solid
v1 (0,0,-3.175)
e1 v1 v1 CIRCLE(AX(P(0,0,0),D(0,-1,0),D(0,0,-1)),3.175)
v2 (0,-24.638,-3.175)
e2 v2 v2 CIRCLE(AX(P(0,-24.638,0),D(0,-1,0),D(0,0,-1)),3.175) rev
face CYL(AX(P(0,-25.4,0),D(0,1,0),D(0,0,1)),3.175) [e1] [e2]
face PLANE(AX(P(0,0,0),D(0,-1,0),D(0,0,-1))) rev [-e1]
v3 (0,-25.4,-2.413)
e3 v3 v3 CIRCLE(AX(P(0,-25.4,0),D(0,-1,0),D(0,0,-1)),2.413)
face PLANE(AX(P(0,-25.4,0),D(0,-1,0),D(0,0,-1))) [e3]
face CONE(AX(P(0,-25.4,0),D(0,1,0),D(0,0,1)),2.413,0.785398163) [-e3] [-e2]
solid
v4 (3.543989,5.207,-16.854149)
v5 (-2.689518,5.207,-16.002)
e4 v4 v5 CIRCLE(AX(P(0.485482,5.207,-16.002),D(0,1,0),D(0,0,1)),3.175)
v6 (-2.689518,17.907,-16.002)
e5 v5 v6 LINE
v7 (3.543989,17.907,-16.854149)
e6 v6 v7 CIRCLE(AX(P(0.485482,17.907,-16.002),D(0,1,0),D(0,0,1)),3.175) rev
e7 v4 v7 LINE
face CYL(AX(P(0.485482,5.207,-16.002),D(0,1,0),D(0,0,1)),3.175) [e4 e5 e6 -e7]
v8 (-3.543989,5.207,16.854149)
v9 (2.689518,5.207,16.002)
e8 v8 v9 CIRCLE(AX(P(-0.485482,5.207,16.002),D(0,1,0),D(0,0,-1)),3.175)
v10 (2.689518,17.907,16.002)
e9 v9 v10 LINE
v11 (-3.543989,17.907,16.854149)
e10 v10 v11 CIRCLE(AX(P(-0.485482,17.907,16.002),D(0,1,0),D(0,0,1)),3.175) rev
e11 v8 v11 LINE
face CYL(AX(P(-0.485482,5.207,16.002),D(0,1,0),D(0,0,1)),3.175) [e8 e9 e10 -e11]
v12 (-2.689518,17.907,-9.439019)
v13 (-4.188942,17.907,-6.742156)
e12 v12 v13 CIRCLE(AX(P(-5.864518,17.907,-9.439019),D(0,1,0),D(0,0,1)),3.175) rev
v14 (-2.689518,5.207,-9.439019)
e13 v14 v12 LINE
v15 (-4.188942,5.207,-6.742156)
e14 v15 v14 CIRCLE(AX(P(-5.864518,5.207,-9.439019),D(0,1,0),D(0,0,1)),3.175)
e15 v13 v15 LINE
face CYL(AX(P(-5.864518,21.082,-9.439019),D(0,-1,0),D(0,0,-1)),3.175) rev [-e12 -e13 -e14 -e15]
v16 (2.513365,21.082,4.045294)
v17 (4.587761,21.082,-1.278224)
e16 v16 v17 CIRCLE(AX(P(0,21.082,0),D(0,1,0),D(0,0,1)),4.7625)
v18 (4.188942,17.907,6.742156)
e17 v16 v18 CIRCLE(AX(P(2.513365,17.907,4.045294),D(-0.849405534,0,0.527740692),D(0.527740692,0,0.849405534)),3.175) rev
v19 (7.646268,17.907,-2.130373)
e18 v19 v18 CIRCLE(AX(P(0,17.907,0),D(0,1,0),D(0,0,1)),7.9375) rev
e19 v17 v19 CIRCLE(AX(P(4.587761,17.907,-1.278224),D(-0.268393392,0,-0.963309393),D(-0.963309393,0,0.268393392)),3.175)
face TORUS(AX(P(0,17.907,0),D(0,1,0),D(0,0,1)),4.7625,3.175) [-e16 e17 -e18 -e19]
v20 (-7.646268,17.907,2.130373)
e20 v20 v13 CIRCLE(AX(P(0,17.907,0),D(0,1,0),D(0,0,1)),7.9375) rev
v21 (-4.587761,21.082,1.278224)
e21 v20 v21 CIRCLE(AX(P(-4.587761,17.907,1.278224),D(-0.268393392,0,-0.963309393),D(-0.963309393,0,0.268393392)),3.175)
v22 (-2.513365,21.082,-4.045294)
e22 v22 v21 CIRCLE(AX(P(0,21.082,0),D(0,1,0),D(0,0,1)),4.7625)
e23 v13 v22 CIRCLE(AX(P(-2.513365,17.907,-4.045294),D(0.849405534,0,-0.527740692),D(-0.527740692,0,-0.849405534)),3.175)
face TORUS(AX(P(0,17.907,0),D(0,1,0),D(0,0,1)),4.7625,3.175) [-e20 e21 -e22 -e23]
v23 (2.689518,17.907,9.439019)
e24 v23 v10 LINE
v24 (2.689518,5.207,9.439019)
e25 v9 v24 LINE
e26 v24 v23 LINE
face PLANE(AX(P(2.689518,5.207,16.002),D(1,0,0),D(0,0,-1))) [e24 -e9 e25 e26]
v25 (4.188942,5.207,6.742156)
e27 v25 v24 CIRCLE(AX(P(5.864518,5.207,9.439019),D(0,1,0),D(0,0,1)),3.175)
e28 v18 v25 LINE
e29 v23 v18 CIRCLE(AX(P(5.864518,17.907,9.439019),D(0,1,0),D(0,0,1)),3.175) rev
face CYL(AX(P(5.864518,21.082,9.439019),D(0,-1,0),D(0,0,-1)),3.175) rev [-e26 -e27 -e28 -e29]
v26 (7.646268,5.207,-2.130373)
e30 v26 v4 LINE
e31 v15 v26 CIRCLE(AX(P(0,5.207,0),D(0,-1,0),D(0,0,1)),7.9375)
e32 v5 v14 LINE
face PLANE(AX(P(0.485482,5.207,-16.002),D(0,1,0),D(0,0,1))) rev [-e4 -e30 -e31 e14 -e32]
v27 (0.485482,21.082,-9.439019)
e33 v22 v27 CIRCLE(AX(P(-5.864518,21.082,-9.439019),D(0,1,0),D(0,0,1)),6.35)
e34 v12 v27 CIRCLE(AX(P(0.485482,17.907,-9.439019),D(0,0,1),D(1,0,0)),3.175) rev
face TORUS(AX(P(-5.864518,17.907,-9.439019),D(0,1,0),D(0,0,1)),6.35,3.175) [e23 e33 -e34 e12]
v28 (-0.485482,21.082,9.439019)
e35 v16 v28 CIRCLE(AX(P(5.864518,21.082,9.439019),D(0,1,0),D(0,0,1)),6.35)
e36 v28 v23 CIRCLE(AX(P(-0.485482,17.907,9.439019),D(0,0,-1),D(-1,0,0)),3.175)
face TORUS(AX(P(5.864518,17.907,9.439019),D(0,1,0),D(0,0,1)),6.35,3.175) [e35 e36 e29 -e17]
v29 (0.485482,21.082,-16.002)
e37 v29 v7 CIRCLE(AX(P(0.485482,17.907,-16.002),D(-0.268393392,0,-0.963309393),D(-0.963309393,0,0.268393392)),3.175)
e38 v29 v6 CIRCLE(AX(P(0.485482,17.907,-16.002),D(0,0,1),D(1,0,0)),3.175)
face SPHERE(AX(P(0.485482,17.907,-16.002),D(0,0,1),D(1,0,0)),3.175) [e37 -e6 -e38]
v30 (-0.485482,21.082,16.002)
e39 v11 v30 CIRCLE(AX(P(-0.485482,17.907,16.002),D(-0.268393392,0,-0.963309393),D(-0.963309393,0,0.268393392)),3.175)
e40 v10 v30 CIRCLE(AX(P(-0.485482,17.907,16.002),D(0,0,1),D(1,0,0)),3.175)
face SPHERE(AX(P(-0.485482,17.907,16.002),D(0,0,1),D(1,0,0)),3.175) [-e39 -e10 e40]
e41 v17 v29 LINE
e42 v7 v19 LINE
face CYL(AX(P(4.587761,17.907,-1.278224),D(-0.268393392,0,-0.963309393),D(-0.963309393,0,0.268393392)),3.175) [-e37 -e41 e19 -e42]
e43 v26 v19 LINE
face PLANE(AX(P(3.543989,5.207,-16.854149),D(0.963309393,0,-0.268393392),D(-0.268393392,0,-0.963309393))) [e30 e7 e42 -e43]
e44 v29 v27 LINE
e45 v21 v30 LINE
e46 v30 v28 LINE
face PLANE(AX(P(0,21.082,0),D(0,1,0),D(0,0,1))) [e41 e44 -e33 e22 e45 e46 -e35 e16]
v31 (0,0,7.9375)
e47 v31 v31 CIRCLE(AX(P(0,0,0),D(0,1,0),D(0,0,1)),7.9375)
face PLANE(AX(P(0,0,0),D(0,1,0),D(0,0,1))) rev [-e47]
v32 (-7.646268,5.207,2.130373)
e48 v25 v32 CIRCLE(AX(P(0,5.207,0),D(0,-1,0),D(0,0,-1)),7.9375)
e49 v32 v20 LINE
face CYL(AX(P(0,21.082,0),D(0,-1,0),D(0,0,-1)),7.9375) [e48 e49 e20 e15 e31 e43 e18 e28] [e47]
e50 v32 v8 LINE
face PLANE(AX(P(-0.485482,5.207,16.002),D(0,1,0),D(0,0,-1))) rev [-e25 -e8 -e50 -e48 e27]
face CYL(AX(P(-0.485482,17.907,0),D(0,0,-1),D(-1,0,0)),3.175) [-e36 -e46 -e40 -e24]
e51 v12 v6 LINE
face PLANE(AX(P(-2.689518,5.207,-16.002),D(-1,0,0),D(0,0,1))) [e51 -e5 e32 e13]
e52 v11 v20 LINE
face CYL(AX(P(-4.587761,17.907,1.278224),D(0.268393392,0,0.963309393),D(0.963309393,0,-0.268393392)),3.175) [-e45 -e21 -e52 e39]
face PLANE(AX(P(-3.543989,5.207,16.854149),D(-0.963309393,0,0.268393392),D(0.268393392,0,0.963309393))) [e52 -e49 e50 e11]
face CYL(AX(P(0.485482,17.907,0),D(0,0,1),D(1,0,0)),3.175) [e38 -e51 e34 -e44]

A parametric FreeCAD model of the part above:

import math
import FreeCAD as App
import Part
import Sketcher

V = App.Vector
Q = App.Units.Quantity


def edges_at(feature, points):
    """Names of the edges that pass closest to the given points."""
    edges = feature.Shape.Edges
    near = lambda p: min(range(len(edges)), key=lambda i: edges[i].distToShape(Part.Vertex(*p))[0])
    return sorted({f"Edge{near(p) + 1}" for p in points})

doc = App.newDocument("Part")
body = doc.addObject("PartDesign::Body", "Body")

# Sketch on XZ plane
sketch1 = body.newObject("Sketcher::SketchObject", "Sketch")
sketch1.AttachmentSupport = (doc.getObject("XZ_Plane"), [""])
sketch1.MapMode = "FlatFace"
sketch1.addGeometry(Part.Circle(V(0, 0, 0), V(0, 0, 1), 8), False)
sketch1.addConstraint(Sketcher.Constraint("Coincident", 0, 3, -1, 1))
sketch1.addConstraint(Sketcher.Constraint("Diameter", 0, Q("0.625 in")))
pad1 = body.newObject("PartDesign::Pad", "Pad")
pad1.Profile = sketch1
pad1.Length = Q("0.83 in")
pad1.Reversed = True

# Sketch on XZ plane
sketch2 = body.newObject("Sketcher::SketchObject", "Sketch001")
sketch2.AttachmentSupport = (doc.getObject("XZ_Plane"), [""])
sketch2.MapMode = "FlatFace"
sketch2.AttachmentOffset = App.Placement(V(0, 0, -0.83 * 25.4), App.Rotation())
sketch2.addGeometry(Part.LineSegment(V(-2.7, -16, 0), V(-2.7, -7.5, 0)), False)
sketch2.addGeometry(Part.ArcOfCircle(Part.Circle(V(0, 0, 0), V(0, 0, 1), 7.9), math.radians(-110), math.radians(-16)), False)
sketch2.addGeometry(Part.LineSegment(V(7.6, -2.1, 0), V(3.5, -16.9, 0)), False)
sketch2.addGeometry(Part.ArcOfCircle(Part.Circle(V(0.5, -16, 0), V(0, 0, 1), 3.2), math.radians(180), math.radians(344)), False)
sketch2.addConstraint(Sketcher.Constraint("Coincident", 0, 2, 1, 1))
sketch2.addConstraint(Sketcher.Constraint("Tangent", 1, 2, 2, 1))
sketch2.addConstraint(Sketcher.Constraint("Tangent", 2, 2, 3, 2))
sketch2.addConstraint(Sketcher.Constraint("Tangent", 3, 1, 0, 1))
sketch2.addConstraint(Sketcher.Constraint("Vertical", 0))
sketch2.addConstraint(Sketcher.Constraint("Coincident", 1, 3, -1, 1))
sketch2.addConstraint(Sketcher.Constraint("Radius", 1, Q("0.3125 in")))
sketch2.addConstraint(Sketcher.Constraint("Radius", 3, Q("0.125 in")))
sketch2.addConstraint(Sketcher.Constraint("DistanceY", 3, 3, -1, 1, Q("0.63 in")))
sketch2.addConstraint(Sketcher.Constraint("DistanceY", 0, 1, 0, 2, 8.534042))
pad2 = body.newObject("PartDesign::Pad", "Pad001")
pad2.Profile = sketch2
pad2.Length = Q("0.625 in")
doc.recompute()

polarpattern = body.newObject("PartDesign::PolarPattern", "PolarPattern")
polarpattern.Originals = [pad2]
polarpattern.Axis = (doc.getObject("Y_Axis"), [""])
polarpattern.Angle = 360
polarpattern.Occurrences = 2
body.Tip = polarpattern
doc.recompute()

fillet = body.newObject("PartDesign::Fillet", "Fillet")
fillet.Base = (polarpattern, edges_at(polarpattern, [
    (6.494, 21.082, 4.564),
    (2.69, 13.145, 7.468),
    (-0.055, 21.082, 19.148),
    (2.69, 21.082, 11.735),
    (-5.595, 21.082, 9.492),
    (-7.053, 21.082, -3.642),
    (-2.69, 13.145, -7.468),
    (0.055, 21.082, -19.148),
    (-2.69, 21.082, -11.735),
    (5.595, 21.082, -9.492),
]))
fillet.Radius = Q("0.125 in")
body2 = doc.addObject("PartDesign::Body", "Body001")

# Sketch on XZ plane
sketch3 = body2.newObject("Sketcher::SketchObject", "Sketch002")
sketch3.AttachmentSupport = (doc.getObject("XZ_Plane001"), [""])
sketch3.MapMode = "FlatFace"
sketch3.addGeometry(Part.Circle(V(0, 0, 0), V(0, 0, 1), 3.2), False)
sketch3.addConstraint(Sketcher.Constraint("Coincident", 0, 3, -1, 1))
sketch3.addConstraint(Sketcher.Constraint("Diameter", 0, Q("0.25 in")))
pad3 = body2.newObject("PartDesign::Pad", "Pad002")
pad3.Profile = sketch3
pad3.Length = Q("1 in")
doc.recompute()

chamfer = body2.newObject("PartDesign::Chamfer", "Chamfer")
chamfer.Base = (pad3, edges_at(pad3, [(-3.175, -25.4, 0)]))
chamfer.Size = Q("0.03 in")

doc.recompute()
